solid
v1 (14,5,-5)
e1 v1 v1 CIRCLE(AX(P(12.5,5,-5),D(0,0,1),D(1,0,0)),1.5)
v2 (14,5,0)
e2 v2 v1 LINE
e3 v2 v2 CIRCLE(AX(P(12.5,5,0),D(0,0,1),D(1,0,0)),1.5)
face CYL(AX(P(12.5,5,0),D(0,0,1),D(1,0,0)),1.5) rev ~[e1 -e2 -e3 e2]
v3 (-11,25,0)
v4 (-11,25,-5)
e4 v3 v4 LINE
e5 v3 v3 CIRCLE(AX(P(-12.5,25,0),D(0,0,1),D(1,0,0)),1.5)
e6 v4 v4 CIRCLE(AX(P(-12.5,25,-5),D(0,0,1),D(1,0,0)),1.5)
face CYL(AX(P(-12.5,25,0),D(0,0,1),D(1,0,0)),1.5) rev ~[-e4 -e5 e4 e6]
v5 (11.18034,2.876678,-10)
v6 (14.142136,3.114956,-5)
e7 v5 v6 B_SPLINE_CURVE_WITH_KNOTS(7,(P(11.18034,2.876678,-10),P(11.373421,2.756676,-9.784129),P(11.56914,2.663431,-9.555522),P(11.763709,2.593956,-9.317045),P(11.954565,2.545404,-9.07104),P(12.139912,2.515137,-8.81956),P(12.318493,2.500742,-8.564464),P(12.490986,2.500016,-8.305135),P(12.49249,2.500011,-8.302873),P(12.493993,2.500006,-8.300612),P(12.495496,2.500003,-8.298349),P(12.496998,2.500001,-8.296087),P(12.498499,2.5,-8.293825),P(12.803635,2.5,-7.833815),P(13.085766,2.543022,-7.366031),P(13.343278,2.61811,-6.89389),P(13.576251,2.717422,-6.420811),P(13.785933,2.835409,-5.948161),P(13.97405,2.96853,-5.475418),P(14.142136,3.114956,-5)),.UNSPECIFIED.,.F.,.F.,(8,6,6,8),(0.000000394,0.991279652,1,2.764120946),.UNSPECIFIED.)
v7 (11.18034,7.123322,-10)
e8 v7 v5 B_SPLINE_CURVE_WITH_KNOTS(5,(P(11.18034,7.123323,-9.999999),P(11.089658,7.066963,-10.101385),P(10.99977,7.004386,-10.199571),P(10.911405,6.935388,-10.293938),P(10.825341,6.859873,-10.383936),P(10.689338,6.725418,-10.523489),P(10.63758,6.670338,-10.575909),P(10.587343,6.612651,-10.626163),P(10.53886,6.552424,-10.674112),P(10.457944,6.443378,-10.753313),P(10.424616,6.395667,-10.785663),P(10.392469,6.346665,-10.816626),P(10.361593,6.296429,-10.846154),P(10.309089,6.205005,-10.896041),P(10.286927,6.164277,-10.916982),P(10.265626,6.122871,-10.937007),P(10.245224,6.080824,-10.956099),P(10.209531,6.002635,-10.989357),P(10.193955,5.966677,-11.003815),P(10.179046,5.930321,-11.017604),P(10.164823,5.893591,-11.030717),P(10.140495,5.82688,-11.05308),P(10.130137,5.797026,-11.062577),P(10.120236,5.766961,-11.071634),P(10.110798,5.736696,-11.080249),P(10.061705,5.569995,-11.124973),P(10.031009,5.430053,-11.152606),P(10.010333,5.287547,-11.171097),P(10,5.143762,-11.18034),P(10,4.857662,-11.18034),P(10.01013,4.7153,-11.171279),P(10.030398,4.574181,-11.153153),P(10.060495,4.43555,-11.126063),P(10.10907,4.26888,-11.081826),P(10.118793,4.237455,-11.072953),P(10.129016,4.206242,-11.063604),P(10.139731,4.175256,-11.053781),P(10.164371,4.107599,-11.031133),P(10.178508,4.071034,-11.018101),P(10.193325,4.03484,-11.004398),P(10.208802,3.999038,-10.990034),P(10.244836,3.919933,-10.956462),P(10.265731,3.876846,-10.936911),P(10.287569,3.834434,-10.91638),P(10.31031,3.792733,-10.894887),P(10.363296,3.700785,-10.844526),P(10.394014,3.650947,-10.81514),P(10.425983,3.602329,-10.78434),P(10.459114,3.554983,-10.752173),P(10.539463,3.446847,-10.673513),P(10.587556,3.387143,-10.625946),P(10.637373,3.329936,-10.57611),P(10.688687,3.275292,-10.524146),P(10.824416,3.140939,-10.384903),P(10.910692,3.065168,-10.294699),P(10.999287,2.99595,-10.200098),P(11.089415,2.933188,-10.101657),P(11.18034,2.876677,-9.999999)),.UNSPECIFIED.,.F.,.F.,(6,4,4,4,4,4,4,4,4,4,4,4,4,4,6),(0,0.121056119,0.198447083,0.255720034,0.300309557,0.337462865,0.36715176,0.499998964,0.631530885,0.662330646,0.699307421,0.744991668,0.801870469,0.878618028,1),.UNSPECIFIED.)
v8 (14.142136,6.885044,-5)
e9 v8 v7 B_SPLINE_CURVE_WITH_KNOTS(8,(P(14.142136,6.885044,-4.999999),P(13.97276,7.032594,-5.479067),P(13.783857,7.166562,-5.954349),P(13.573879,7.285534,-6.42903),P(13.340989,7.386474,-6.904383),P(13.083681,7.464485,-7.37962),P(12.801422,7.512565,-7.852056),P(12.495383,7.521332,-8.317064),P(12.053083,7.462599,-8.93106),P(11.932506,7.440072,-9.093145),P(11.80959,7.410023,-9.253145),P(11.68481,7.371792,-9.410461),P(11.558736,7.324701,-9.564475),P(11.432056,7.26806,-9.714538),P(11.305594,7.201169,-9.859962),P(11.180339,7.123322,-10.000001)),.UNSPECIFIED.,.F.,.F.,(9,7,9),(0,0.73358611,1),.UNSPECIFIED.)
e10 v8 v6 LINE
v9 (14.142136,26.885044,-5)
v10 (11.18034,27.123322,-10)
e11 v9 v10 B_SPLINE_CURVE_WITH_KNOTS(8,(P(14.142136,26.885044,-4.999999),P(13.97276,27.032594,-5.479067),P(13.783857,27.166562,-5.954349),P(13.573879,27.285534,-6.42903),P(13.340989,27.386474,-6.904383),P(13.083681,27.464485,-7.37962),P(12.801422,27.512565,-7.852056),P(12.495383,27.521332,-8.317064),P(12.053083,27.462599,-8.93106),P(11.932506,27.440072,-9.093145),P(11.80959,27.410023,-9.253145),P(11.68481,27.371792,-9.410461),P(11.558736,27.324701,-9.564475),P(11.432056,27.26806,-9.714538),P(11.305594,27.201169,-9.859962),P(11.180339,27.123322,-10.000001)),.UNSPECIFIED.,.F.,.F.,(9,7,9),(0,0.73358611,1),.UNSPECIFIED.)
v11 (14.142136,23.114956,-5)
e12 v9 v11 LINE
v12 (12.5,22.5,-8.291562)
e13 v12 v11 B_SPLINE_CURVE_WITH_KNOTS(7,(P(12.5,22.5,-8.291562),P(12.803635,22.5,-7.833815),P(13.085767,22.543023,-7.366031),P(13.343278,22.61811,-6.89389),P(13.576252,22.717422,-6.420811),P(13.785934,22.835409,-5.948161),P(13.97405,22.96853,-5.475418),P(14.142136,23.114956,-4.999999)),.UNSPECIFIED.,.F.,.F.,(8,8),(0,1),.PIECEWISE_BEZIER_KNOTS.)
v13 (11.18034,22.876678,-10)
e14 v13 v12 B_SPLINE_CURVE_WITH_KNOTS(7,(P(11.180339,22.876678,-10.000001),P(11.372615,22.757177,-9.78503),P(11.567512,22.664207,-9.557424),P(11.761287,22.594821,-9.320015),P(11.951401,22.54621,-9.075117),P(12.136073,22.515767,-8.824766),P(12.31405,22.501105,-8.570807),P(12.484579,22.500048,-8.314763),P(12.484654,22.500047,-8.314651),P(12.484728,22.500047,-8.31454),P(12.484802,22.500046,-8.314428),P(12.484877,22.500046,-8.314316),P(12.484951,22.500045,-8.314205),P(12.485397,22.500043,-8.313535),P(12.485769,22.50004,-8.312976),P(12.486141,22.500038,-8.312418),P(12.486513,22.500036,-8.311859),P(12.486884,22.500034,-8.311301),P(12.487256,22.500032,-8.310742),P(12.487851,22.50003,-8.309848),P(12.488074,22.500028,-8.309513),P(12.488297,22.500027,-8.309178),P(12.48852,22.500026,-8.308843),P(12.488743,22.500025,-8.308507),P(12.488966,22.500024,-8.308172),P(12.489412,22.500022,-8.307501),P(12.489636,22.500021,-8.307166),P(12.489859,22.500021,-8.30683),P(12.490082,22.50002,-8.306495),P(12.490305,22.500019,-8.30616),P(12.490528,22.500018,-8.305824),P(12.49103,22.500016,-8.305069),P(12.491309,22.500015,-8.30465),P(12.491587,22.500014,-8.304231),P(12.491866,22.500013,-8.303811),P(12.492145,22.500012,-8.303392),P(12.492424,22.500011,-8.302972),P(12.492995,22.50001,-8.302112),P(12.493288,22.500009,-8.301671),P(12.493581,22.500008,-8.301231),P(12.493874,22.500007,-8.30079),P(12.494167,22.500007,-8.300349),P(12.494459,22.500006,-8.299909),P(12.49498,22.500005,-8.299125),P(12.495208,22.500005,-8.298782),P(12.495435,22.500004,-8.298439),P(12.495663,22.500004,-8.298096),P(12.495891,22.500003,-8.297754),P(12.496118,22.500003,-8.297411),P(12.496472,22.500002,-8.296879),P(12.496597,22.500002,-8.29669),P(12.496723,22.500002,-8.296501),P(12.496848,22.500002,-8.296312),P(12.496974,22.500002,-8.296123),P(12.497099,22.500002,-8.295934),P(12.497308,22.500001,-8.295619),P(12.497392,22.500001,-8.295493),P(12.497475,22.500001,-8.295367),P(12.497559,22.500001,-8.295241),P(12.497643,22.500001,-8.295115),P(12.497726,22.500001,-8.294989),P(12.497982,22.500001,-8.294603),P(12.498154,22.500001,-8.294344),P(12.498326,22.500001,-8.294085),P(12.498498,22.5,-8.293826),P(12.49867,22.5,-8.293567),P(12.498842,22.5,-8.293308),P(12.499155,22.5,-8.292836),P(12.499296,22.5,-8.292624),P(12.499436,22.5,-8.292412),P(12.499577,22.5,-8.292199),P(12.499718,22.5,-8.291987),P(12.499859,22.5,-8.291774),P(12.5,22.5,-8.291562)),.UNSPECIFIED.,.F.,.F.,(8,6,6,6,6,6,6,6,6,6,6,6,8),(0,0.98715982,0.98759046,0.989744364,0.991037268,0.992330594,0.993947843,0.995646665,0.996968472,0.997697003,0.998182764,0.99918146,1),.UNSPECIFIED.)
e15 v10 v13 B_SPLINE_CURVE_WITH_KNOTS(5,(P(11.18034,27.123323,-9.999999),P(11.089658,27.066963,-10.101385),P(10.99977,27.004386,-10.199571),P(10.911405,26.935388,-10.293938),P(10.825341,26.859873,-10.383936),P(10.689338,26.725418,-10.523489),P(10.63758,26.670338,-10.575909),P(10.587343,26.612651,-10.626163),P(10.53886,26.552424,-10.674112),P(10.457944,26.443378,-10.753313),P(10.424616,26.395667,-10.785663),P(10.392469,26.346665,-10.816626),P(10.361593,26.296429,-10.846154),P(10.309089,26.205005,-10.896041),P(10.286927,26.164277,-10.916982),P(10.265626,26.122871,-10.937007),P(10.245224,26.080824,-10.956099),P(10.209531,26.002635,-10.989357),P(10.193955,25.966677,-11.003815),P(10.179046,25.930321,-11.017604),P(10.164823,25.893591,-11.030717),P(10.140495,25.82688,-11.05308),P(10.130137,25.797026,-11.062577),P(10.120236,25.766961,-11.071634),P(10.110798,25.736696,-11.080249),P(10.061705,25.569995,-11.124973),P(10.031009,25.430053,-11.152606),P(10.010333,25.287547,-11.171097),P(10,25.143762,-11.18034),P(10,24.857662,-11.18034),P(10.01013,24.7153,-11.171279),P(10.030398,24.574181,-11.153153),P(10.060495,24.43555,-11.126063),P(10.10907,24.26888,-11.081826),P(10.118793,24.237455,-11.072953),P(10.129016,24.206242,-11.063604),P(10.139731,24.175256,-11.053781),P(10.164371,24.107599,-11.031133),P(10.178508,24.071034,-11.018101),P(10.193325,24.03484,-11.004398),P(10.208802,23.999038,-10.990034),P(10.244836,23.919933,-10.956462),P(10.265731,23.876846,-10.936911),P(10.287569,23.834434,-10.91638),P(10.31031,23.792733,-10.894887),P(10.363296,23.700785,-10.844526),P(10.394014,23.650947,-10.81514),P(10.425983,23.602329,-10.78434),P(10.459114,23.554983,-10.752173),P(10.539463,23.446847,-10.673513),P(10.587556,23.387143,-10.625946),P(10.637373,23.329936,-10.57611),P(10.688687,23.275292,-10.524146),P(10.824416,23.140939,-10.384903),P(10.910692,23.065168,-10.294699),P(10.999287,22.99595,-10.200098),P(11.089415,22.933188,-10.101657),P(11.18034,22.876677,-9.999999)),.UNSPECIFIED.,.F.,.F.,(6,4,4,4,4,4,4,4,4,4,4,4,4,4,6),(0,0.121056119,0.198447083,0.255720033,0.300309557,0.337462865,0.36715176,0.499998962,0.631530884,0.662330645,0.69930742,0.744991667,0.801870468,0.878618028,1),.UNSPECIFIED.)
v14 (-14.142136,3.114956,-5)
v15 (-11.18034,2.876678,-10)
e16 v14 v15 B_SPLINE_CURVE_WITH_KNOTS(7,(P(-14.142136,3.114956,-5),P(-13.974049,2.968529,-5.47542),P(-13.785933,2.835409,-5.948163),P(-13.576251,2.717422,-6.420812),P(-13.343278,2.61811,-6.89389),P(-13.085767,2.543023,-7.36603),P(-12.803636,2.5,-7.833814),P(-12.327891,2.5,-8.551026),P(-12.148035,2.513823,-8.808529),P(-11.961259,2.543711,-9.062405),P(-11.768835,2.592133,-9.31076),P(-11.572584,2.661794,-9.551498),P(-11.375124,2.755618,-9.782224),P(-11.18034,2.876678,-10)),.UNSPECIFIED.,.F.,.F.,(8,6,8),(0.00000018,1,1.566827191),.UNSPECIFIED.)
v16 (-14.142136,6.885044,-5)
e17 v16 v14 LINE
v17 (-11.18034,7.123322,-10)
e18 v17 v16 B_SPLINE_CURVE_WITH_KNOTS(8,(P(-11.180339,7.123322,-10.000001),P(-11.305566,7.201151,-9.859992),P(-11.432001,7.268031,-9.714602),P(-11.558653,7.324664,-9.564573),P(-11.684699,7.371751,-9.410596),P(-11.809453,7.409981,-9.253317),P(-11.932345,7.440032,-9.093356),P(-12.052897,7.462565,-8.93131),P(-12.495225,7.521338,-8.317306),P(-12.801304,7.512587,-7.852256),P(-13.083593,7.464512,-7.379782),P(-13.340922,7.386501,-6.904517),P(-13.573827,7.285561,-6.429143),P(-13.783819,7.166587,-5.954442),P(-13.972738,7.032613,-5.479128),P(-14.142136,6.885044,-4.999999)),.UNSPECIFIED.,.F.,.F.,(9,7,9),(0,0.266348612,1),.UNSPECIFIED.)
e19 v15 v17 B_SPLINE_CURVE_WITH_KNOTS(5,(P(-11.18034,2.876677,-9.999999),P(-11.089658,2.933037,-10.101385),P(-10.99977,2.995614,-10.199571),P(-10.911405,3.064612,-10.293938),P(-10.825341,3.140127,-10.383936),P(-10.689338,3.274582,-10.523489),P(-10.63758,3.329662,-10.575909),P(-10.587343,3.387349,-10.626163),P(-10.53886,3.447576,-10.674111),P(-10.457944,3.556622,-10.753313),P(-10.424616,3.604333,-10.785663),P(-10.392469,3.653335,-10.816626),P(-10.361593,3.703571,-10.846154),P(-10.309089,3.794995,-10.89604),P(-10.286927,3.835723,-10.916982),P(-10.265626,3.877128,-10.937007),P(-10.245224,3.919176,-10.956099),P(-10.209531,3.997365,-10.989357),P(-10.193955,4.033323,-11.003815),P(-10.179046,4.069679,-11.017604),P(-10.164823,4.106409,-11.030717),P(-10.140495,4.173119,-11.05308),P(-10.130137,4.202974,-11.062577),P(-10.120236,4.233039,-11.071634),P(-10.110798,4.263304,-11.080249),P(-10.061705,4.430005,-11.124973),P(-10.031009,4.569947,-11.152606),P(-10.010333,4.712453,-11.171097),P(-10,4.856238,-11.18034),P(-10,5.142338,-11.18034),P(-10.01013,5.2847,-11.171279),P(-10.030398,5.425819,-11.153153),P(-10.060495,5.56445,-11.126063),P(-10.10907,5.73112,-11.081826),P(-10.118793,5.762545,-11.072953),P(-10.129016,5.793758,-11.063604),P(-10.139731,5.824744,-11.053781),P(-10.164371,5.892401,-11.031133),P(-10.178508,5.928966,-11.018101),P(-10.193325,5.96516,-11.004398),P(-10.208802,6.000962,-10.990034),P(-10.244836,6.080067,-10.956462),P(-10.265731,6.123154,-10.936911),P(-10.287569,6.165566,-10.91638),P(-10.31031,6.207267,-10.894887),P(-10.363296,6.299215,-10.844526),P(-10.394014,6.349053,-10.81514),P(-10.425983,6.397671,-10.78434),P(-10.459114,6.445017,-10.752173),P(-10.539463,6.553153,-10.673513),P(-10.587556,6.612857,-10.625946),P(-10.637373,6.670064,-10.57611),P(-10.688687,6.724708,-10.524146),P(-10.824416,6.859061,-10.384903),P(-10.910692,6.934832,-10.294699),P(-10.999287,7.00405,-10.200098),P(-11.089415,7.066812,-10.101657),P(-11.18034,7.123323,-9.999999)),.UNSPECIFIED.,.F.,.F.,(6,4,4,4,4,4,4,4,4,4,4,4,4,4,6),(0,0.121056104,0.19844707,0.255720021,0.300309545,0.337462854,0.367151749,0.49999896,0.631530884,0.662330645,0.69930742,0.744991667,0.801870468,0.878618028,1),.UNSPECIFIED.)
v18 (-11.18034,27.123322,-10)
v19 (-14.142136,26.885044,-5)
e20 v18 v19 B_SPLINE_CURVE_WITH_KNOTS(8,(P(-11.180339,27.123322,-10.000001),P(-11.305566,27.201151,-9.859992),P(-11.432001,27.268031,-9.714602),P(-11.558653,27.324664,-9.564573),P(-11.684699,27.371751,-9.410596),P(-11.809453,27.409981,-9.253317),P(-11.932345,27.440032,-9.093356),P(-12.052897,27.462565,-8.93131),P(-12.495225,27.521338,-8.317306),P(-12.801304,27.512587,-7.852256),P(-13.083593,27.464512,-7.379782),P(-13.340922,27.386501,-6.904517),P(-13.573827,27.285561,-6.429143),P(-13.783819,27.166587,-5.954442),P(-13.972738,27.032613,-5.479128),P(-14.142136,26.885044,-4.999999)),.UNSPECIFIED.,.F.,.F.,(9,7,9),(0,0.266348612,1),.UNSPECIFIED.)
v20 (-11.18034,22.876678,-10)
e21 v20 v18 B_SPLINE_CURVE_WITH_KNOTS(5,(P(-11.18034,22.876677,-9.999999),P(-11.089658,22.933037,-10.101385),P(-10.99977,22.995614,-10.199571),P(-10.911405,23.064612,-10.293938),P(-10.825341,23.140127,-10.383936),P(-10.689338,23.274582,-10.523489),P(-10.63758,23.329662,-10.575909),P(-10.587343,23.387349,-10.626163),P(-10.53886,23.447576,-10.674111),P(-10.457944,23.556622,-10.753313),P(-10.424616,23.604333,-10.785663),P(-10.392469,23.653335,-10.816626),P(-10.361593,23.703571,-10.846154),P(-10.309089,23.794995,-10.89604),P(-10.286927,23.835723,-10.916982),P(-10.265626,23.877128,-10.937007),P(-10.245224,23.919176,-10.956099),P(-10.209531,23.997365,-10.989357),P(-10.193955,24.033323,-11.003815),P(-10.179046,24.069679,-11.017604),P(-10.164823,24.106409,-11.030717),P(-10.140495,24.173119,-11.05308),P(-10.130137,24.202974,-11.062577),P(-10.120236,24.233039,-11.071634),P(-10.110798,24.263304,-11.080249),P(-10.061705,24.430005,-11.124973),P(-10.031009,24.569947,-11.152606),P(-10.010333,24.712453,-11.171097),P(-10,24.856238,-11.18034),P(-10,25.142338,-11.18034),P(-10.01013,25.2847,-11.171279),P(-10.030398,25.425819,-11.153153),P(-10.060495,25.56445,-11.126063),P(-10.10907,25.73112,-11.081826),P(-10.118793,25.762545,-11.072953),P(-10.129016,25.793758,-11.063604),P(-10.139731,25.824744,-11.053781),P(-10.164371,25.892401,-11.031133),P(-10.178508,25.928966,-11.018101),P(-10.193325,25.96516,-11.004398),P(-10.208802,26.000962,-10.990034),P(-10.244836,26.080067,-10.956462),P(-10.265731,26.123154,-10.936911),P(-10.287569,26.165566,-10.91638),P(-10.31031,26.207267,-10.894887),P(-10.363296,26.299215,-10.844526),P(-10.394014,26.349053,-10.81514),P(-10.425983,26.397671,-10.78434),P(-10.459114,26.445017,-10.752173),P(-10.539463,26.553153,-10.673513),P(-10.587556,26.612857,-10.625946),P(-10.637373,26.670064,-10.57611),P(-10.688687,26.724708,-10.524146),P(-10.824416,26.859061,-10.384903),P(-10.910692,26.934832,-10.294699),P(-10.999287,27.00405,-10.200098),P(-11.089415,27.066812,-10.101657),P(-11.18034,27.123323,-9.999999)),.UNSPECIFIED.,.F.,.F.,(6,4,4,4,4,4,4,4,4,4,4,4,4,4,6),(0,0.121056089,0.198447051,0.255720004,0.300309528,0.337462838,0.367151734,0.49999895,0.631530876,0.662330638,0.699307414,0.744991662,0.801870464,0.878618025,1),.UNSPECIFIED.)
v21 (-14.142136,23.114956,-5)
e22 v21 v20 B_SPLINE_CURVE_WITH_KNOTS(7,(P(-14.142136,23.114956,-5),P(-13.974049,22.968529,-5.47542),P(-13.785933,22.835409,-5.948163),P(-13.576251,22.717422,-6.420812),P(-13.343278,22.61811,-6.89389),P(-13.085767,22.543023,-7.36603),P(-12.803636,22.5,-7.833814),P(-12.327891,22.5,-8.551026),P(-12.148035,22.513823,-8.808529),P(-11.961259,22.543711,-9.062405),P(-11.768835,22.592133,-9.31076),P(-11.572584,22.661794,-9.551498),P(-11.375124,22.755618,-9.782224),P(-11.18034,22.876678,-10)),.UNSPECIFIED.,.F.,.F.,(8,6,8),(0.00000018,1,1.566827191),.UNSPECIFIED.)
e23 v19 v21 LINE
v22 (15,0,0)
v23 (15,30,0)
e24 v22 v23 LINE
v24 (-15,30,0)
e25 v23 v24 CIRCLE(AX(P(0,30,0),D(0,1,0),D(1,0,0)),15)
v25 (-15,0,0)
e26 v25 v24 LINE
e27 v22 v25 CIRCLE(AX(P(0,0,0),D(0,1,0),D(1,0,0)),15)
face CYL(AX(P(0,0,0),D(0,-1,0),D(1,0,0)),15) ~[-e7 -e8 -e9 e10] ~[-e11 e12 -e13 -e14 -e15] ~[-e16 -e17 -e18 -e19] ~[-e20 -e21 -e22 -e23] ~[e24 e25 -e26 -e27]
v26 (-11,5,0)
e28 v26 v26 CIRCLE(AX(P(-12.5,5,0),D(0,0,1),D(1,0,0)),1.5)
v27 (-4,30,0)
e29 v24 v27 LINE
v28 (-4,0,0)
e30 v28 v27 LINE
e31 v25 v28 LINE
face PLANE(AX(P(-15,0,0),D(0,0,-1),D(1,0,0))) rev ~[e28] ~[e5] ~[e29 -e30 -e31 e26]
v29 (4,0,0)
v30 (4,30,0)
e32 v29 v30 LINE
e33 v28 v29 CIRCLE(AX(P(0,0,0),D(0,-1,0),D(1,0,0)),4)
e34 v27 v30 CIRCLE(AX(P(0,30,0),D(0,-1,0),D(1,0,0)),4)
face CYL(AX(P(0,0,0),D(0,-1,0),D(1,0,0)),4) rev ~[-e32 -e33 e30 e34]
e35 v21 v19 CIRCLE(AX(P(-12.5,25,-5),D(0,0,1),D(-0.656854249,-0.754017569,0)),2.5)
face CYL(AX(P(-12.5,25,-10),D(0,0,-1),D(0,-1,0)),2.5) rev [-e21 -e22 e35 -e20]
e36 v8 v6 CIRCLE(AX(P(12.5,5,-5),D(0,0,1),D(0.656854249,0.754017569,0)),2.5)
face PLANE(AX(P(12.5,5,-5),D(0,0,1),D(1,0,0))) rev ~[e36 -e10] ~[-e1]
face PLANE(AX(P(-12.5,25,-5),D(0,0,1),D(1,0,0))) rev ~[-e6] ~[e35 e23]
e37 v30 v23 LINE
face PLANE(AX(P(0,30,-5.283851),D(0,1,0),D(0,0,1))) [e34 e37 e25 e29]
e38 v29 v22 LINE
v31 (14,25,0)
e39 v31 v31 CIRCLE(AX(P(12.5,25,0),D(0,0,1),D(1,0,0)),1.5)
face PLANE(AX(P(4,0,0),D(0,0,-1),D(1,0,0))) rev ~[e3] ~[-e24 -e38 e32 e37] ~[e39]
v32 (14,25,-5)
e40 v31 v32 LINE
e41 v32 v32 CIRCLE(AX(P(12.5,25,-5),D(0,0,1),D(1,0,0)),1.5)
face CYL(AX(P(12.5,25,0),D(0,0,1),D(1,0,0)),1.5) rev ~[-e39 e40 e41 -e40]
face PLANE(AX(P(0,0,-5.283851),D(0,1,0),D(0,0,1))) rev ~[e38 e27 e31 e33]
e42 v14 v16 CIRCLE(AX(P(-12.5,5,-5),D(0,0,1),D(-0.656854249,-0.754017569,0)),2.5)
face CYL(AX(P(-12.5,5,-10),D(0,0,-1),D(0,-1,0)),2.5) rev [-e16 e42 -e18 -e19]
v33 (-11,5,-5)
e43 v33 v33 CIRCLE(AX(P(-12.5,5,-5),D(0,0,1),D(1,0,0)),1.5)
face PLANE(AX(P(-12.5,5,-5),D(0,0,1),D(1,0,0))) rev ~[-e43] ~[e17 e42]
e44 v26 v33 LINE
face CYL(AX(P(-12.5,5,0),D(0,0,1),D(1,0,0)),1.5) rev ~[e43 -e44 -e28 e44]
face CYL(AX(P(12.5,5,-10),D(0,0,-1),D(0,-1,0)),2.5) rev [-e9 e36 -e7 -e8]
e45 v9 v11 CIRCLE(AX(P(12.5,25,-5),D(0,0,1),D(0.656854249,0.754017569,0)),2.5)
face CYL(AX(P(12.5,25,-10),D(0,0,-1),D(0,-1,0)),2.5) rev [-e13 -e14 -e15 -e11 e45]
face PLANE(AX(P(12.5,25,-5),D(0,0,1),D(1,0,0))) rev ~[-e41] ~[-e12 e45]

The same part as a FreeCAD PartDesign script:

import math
import FreeCAD as App
import Part
import Sketcher
from FreeCAD import Vector

doc = App.newDocument("Part")
params = doc.addObject("Spreadsheet::Sheet", "Params")
for row, (alias, value) in enumerate([
    ("sketch1_radius", "4 mm"),
    ("sketch1_radius2", "15 mm"),
    ("pad1_length", "30 mm"),
    ("sketch2_diameter", "3 mm"),
    ("pocket1_length", "20 mm"),
    ("sketch3_diameter", "5 mm"),
    ("pocket2_length", "10 mm"),
], start=1):
    params.set(f"A{row}", alias)
    params.set(f"B{row}", "=" + value)
    params.setAlias(f"B{row}", alias)

body = doc.addObject("PartDesign::Body", "Body")

# Sketch on XZ plane
sketch1 = body.newObject("Sketcher::SketchObject", "Sketch")
sketch1.AttachmentSupport = (doc.getObject("XZ_Plane"), [""])
sketch1.MapMode = "FlatFace"
sketch1.addGeometry([
    Part.LineSegment(Vector(15, 0, 0), Vector(4, 0, 0)),
    Part.ArcOfCircle(Part.Circle(Vector(0, 0, 0), Vector(0, 0, 1), 4), math.radians(180), math.radians(360)),
    Part.LineSegment(Vector(-4, 0, 0), Vector(-15, 0, 0)),
    Part.ArcOfCircle(Part.Circle(Vector(0, 0, 0), Vector(0, 0, 1), 15), math.radians(180), math.radians(360)),
], False)
sketch1.addConstraint([
    Sketcher.Constraint("Coincident", 0, 2, 1, 2),
    Sketcher.Constraint("Coincident", 1, 1, 2, 1),
    Sketcher.Constraint("Coincident", 2, 2, 3, 1),
    Sketcher.Constraint("Coincident", 3, 2, 0, 1),
    Sketcher.Constraint("Horizontal", 0),
    Sketcher.Constraint("Horizontal", 2),
    Sketcher.Constraint("Coincident", 1, 3, -1, 1),
    Sketcher.Constraint("Coincident", 3, 3, -1, 1),
    Sketcher.Constraint("PointOnObject", 0, 2, -1),
    Sketcher.Constraint("PointOnObject", 1, 1, -1),
    Sketcher.Constraint("Radius", 1, 4.0),
    Sketcher.Constraint("Radius", 3, 15.0),
])
sketch1.setExpression("Constraints[10]", "Params.sketch1_radius")
sketch1.setExpression("Constraints[11]", "Params.sketch1_radius2")
pad1 = body.newObject("PartDesign::Pad", "Pad")
pad1.Profile = sketch1
pad1.setExpression("Length", "Params.pad1_length")
pad1.Reversed = True

# Sketch on XY plane
sketch2 = body.newObject("Sketcher::SketchObject", "Sketch001")
sketch2.AttachmentSupport = (doc.getObject("XY_Plane"), [""])
sketch2.MapMode = "FlatFace"
sketch2.addGeometry([
    Part.Circle(Vector(-12.5, 25, 0), Vector(0, 0, 1), 1.5),
    Part.Circle(Vector(12.5, 25, 0), Vector(0, 0, 1), 1.5),
    Part.Circle(Vector(12.5, 5, 0), Vector(0, 0, 1), 1.5),
    Part.Circle(Vector(-12.5, 5, 0), Vector(0, 0, 1), 1.5),
], False)
sketch2.addConstraint([
    Sketcher.Constraint("Equal", 0, 1),
    Sketcher.Constraint("Equal", 1, 2),
    Sketcher.Constraint("Equal", 2, 3),
    Sketcher.Constraint("Symmetric", 0, 3, 1, 3, -2),
    Sketcher.Constraint("Symmetric", 2, 3, 3, 3, -2),
    Sketcher.Constraint("Vertical", 1, 3, 2, 3),
    Sketcher.Constraint("Diameter", 0, 3.0),
    Sketcher.Constraint("DistanceY", -1, 1, 0, 3, 25.0),
    Sketcher.Constraint("DistanceY", -1, 1, 2, 3, 5.0),
    Sketcher.Constraint("DistanceX", 0, 3, 1, 3, 25.0),
])
sketch2.setExpression("Constraints[6]", "Params.sketch2_diameter")
pocket1 = body.newObject("PartDesign::Pocket", "Pocket")
pocket1.Profile = sketch2
pocket1.setExpression("Length", "Params.pocket1_length")

# Sketch on XY plane
sketch3 = body.newObject("Sketcher::SketchObject", "Sketch002")
sketch3.AttachmentSupport = (doc.getObject("XY_Plane"), [""])
sketch3.MapMode = "FlatFace"
sketch3.AttachmentOffset = App.Placement(Vector(0, 0, -10), App.Rotation())
sketch3.addGeometry([
    Part.Circle(Vector(12.5, 25, 0), Vector(0, 0, 1), 2.5),
    Part.Circle(Vector(12.5, 5, 0), Vector(0, 0, 1), 2.5),
    Part.Circle(Vector(-12.5, 25, 0), Vector(0, 0, 1), 2.5),
    Part.Circle(Vector(-12.5, 5, 0), Vector(0, 0, 1), 2.5),
], False)
sketch3.addConstraint([
    Sketcher.Constraint("Equal", 0, 1),
    Sketcher.Constraint("Equal", 1, 2),
    Sketcher.Constraint("Equal", 2, 3),
    Sketcher.Constraint("Symmetric", 0, 3, 2, 3, -2),
    Sketcher.Constraint("Symmetric", 1, 3, 3, 3, -2),
    Sketcher.Constraint("Vertical", 0, 3, 1, 3),
    Sketcher.Constraint("Diameter", 0, 5.0),
    Sketcher.Constraint("DistanceY", -1, 1, 0, 3, 25.0),
    Sketcher.Constraint("DistanceY", -1, 1, 1, 3, 5.0),
    Sketcher.Constraint("DistanceX", 2, 3, 0, 3, 25.0),
])
sketch3.setExpression("Constraints[6]", "Params.sketch3_diameter")
pocket2 = body.newObject("PartDesign::Pocket", "Pocket001")
pocket2.Profile = sketch3
pocket2.setExpression("Length", "Params.pocket2_length")
pocket2.Midplane = True

doc.recompute()
